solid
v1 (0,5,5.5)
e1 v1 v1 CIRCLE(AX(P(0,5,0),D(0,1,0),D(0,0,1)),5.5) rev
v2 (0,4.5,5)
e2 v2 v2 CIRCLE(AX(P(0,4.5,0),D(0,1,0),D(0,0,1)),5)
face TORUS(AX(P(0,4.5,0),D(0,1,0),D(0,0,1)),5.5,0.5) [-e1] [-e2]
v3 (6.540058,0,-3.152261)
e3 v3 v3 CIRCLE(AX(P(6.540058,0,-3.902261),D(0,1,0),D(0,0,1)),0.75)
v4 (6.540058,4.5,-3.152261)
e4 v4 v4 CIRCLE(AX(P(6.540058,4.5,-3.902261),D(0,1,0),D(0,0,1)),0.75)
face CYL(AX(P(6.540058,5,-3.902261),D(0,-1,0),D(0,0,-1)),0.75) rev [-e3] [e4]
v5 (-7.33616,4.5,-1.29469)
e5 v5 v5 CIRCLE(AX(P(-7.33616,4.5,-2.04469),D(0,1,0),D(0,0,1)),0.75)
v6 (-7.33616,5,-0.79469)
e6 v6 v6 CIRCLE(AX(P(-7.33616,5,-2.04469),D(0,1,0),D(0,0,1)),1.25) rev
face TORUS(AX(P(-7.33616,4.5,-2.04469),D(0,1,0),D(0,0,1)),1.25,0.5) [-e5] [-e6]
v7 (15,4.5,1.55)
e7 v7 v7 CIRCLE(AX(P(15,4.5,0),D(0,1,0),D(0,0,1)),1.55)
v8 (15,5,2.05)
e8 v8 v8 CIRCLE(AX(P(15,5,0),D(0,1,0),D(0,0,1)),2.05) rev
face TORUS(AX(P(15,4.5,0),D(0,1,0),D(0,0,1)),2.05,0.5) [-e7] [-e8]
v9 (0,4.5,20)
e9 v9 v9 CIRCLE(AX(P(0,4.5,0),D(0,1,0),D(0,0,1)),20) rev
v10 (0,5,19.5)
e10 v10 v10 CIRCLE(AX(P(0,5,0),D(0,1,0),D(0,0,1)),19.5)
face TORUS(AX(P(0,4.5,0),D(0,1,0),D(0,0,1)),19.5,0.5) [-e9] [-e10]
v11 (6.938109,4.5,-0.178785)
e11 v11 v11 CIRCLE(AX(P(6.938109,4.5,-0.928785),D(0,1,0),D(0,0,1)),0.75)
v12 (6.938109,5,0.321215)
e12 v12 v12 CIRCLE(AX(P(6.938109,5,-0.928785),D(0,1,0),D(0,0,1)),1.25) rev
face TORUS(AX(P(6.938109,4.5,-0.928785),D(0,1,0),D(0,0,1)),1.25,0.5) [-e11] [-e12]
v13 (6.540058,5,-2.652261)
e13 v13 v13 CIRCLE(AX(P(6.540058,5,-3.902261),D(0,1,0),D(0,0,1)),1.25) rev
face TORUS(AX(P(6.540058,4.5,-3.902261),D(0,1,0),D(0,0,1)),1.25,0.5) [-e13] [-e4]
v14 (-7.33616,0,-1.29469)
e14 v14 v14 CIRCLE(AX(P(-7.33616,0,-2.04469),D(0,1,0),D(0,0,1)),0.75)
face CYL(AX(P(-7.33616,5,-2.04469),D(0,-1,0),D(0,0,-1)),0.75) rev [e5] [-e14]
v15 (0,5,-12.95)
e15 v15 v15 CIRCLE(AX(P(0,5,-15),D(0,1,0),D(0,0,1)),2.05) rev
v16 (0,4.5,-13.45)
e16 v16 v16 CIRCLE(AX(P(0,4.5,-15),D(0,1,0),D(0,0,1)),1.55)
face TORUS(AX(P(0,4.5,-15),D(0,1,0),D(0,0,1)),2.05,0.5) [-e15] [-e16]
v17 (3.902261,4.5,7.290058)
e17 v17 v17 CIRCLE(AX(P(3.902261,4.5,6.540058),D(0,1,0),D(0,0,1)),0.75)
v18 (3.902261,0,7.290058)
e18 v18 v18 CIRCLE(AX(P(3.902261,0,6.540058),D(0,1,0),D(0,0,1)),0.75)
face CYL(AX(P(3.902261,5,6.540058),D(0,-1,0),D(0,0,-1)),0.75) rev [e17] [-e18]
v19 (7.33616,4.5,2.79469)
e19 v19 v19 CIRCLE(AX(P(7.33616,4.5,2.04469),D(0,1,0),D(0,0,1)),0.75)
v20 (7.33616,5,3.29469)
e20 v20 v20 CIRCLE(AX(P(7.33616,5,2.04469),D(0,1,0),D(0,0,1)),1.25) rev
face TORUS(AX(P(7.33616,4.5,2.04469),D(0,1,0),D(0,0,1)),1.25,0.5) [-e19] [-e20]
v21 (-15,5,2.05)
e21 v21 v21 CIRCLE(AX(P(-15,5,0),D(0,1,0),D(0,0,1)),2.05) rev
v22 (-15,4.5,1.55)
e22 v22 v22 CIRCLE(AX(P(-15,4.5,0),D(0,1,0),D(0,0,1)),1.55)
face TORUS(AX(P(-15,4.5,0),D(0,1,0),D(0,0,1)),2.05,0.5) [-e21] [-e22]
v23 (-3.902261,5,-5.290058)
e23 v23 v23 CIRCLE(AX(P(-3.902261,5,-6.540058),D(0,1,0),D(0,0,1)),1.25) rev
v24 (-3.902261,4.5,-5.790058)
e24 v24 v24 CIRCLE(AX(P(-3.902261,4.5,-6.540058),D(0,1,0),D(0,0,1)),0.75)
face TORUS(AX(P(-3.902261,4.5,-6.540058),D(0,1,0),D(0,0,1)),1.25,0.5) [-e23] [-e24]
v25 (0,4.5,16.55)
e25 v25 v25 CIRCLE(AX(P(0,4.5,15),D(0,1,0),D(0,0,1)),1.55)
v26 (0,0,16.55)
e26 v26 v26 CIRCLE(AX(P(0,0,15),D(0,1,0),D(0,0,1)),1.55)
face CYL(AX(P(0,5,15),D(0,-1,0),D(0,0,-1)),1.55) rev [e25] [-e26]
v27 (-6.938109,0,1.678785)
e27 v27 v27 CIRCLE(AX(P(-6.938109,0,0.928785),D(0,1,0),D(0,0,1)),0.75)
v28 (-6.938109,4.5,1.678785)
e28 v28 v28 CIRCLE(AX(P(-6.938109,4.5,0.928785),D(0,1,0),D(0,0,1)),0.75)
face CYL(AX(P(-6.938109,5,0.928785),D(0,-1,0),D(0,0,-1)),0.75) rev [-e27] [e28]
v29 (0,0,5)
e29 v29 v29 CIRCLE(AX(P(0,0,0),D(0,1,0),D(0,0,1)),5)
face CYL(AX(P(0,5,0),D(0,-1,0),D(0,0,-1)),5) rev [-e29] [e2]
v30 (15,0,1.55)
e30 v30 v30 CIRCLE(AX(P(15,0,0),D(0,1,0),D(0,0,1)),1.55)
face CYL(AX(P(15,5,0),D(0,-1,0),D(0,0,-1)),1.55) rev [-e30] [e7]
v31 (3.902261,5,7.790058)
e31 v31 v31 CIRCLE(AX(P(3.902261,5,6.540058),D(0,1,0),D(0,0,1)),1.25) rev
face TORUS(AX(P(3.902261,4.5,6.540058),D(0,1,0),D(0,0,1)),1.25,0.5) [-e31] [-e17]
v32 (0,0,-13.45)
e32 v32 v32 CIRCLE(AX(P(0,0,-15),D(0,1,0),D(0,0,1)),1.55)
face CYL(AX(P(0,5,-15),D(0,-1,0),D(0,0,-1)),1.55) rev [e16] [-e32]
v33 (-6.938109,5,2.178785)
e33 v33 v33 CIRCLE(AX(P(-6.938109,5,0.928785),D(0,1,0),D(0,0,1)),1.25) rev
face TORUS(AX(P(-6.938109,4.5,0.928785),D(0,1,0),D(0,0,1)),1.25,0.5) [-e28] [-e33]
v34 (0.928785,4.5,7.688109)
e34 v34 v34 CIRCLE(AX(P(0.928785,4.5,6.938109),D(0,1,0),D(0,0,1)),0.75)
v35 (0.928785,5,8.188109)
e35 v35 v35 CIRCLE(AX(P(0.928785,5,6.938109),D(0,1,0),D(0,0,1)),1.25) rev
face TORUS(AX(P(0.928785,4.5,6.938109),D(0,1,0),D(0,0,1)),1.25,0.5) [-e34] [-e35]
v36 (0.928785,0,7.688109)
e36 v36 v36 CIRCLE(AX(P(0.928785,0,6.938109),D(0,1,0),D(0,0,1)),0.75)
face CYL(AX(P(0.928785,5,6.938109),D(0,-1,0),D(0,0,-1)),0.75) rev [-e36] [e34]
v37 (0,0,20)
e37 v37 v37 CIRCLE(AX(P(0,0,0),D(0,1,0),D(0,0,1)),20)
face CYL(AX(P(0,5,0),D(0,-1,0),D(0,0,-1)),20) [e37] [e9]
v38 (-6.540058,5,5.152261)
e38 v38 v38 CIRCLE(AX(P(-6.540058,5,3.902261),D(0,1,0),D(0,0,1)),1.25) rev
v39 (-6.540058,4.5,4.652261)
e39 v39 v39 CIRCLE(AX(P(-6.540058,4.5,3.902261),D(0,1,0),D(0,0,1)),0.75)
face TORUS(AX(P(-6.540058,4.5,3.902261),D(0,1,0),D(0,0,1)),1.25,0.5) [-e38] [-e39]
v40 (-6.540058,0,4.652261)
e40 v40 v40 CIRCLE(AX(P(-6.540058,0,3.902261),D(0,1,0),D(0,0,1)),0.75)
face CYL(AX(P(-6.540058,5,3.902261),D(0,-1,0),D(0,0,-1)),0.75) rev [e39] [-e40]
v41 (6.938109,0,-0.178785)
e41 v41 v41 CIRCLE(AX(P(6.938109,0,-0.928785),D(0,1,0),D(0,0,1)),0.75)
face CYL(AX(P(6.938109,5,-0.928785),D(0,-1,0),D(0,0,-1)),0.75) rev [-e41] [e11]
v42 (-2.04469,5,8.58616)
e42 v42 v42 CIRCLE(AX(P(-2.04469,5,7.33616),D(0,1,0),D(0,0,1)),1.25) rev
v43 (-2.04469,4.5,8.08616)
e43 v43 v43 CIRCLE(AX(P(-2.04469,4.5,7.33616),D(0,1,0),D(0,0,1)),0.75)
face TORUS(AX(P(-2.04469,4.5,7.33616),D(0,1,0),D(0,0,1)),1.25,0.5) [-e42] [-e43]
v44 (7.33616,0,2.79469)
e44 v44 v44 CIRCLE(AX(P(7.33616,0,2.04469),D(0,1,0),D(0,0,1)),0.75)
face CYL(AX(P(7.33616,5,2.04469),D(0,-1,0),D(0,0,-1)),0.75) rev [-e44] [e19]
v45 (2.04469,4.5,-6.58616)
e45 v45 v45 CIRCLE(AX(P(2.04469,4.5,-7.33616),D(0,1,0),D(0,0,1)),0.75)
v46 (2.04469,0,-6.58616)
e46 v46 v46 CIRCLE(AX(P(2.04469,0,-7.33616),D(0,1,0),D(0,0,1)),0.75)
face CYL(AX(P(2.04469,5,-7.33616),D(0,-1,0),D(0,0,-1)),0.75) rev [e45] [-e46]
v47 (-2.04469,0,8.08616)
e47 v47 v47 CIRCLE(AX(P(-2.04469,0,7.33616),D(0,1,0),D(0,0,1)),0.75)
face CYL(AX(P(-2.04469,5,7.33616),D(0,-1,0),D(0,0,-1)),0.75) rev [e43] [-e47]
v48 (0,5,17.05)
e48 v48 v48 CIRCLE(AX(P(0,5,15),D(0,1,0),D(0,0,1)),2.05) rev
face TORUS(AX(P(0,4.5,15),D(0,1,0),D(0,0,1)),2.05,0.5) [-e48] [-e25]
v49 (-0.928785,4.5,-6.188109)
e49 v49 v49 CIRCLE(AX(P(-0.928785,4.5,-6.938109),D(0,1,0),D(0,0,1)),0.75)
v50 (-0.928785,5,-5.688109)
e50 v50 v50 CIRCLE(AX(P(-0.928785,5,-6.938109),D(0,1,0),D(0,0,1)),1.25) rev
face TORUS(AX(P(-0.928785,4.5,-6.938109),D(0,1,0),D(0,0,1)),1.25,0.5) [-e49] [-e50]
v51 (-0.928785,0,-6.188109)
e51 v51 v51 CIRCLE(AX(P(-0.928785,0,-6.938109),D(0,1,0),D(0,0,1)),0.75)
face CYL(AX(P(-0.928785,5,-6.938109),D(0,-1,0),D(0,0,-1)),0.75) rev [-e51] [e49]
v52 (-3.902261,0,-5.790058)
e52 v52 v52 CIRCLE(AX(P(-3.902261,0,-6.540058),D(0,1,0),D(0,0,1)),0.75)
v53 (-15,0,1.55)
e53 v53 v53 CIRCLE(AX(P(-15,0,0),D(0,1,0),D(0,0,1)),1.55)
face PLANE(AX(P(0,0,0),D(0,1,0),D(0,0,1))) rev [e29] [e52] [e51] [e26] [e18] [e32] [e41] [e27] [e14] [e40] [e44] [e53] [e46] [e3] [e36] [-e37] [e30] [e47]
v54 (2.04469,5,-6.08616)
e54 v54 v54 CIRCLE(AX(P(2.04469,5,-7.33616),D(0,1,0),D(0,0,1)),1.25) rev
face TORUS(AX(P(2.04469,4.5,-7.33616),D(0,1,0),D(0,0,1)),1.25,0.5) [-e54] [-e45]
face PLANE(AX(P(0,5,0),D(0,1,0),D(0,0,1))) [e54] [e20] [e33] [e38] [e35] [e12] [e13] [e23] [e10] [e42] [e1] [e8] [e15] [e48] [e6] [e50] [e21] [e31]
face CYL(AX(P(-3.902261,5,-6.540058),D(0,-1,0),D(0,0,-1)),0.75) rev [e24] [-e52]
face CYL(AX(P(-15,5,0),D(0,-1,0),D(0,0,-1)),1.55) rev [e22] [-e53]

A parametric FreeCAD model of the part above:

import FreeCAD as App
import Part
import Sketcher
Q = App.Units.Quantity


def edges_at(feature, points):
    """Names of the edges that pass closest to the given points."""
    edges = feature.Shape.Edges
    near = lambda p: min(range(len(edges)), key=lambda i: edges[i].distToShape(Part.Vertex(*p))[0])
    return sorted({f"Edge{near(p) + 1}" for p in points})

doc = App.newDocument("Part")
body = doc.addObject("PartDesign::Body", "Body")

# Sketch on XZ plane
sketch1 = body.newObject("Sketcher::SketchObject", "Sketch")
sketch1.AttachmentSupport = (doc.getObject("XZ_Plane"), [""])
sketch1.MapMode = "FlatFace"
sketch1.addGeometry([
    Part.Circle(App.Vector(0, 0, 0), App.Vector(0, 0, 1), 20),  # 0
    Part.Circle(App.Vector(0, 15, 0), App.Vector(0, 0, 1), 1.6),  # 1
    Part.Circle(App.Vector(-15, 0, 0), App.Vector(0, 0, 1), 1.6),  # 2
    Part.Circle(App.Vector(0, 0, 0), App.Vector(0, 0, 1), 5),  # 3
    Part.Circle(App.Vector(0, -15, 0), App.Vector(0, 0, 1), 1.6),  # 4
    Part.Circle(App.Vector(15, 0, 0), App.Vector(0, 0, 1), 1.6),  # 5
], False)
sketch1.addConstraint([
    Sketcher.Constraint("Coincident", 0, 3, -1, 1),
    Sketcher.Constraint("Coincident", 3, 3, -1, 1),
    Sketcher.Constraint("Equal", 1, 2),
    Sketcher.Constraint("Equal", 2, 4),
    Sketcher.Constraint("Equal", 4, 5),
    Sketcher.Constraint("Symmetric", 1, 3, 4, 3, -1, 1),
    Sketcher.Constraint("Symmetric", 2, 3, 5, 3, -1, 1),
    Sketcher.Constraint("PointOnObject", 1, 3, -2),
    Sketcher.Constraint("PointOnObject", 2, 3, -1),
    Sketcher.Constraint("Diameter", 0, Q("40 mm")),
    Sketcher.Constraint("Diameter", 3, Q("10 mm")),
    Sketcher.Constraint("Diameter", 1, Q("3.1 mm")),
    Sketcher.Constraint("DistanceY", -1, 1, 1, 3, Q("15 mm")),
    Sketcher.Constraint("DistanceX", 2, 3, -1, 1, Q("15 mm")),
])
pad1 = body.newObject("PartDesign::Pad", "Pad")
pad1.Profile = sketch1
pad1.Length = 5
pad1.Reversed = True
doc.recompute()

fillet = body.newObject("PartDesign::Fillet", "Fillet")
fillet.Base = (pad1, edges_at(pad1, [
    (-1.55, 5, 15),
    (-16.55, 5, 0),
    (-5, 5, 0),
    (-20, 5, 0),
    (-1.55, 5, -15),
    (13.45, 5, 0),
]))
fillet.Radius = 0.5

# Sketch on XZ plane
sketch2 = body.newObject("Sketcher::SketchObject", "Sketch001")
sketch2.AttachmentSupport = (doc.getObject("XZ_Plane"), [""])
sketch2.MapMode = "FlatFace"
sketch2.addGeometry([
    Part.Circle(App.Vector(-7.3, -2, 0), App.Vector(0, 0, 1), 0.8),  # 0
    Part.Circle(App.Vector(-6.9, 0.9, 0), App.Vector(0, 0, 1), 0.8),  # 1
    Part.Circle(App.Vector(-6.5, 3.9, 0), App.Vector(0, 0, 1), 0.8),  # 2
    Part.Circle(App.Vector(-2, 7.3, 0), App.Vector(0, 0, 1), 0.8),  # 3
    Part.Circle(App.Vector(0.9, 6.9, 0), App.Vector(0, 0, 1), 0.8),  # 4
    Part.Circle(App.Vector(3.9, 6.5, 0), App.Vector(0, 0, 1), 0.8),  # 5
    Part.Circle(App.Vector(7.3, 2, 0), App.Vector(0, 0, 1), 0.8),  # 6
    Part.Circle(App.Vector(6.9, -0.9, 0), App.Vector(0, 0, 1), 0.8),  # 7
    Part.Circle(App.Vector(6.5, -3.9, 0), App.Vector(0, 0, 1), 0.8),  # 8
    Part.Circle(App.Vector(2, -7.3, 0), App.Vector(0, 0, 1), 0.8),  # 9
    Part.Circle(App.Vector(-0.9, -6.9, 0), App.Vector(0, 0, 1), 0.8),  # 10
    Part.Circle(App.Vector(-3.9, -6.5, 0), App.Vector(0, 0, 1), 0.8),  # 11
], False)
sketch2.addConstraint([
    Sketcher.Constraint("Equal", 0, 1),
    Sketcher.Constraint("Equal", 1, 2),
    Sketcher.Constraint("Equal", 2, 3),
    Sketcher.Constraint("Equal", 3, 4),
    Sketcher.Constraint("Equal", 4, 5),
    Sketcher.Constraint("Equal", 5, 6),
    Sketcher.Constraint("Equal", 6, 7),
    Sketcher.Constraint("Equal", 7, 8),
    Sketcher.Constraint("Equal", 8, 9),
    Sketcher.Constraint("Equal", 9, 10),
    Sketcher.Constraint("Equal", 10, 11),
    Sketcher.Constraint("Symmetric", 0, 3, 6, 3, -1, 1),
    Sketcher.Constraint("Symmetric", 1, 3, 7, 3, -1, 1),
    Sketcher.Constraint("Symmetric", 2, 3, 8, 3, -1, 1),
    Sketcher.Constraint("Symmetric", 3, 3, 9, 3, -1, 1),
    Sketcher.Constraint("Symmetric", 4, 3, 10, 3, -1, 1),
    Sketcher.Constraint("Symmetric", 5, 3, 11, 3, -1, 1),
    Sketcher.Constraint("Diameter", 0, Q("1.5 mm")),
    Sketcher.Constraint("DistanceX", 0, 3, 2, 3, Q("0.796102 mm")),
    Sketcher.Constraint("DistanceY", 2, 3, 3, 3, Q("3.433899 mm")),
    Sketcher.Constraint("DistanceY", 0, 3, 4, 3, Q("8.982799 mm")),
    Sketcher.Constraint("DistanceY", 5, 3, 3, 3, Q("0.796102 mm")),
    Sketcher.Constraint("DistanceX", 5, 3, 6, 3, Q("3.433899 mm")),
    Sketcher.Constraint("DistanceX", 3, 3, 7, 3, Q("8.982799 mm")),
    Sketcher.Constraint("DistanceX", 0, 3, -1, 1, Q("7.33616 mm")),
    Sketcher.Constraint("DistanceY", 0, 3, -1, 1, Q("2.04469 mm")),
    Sketcher.Constraint("DistanceX", 1, 3, -1, 1, Q("6.938109 mm")),
    Sketcher.Constraint("DistanceY", -1, 1, 2, 3, Q("3.902261 mm")),
    Sketcher.Constraint("DistanceY", 7, 3, 1, 3, Q("1.857571 mm")),
    Sketcher.Constraint("DistanceX", -1, 1, 4, 3, Q("0.928785 mm")),
])
pocket1 = body.newObject("PartDesign::Pocket", "Pocket")
pocket1.Profile = sketch2
pocket1.Type = "ThroughAll"
pocket1.Midplane = True
doc.recompute()

fillet2 = body.newObject("PartDesign::Fillet", "Fillet001")
fillet2.Base = (pocket1, edges_at(pocket1, [
    (-2.795, 5, 7.336),
    (0.179, 5, 6.938),
    (3.152, 5, 6.54),
    (6.586, 5, 2.045),
    (6.188, 5, -0.929),
    (5.79, 5, -3.902),
    (1.295, 5, -7.336),
    (-8.086, 5, -2.045),
    (-4.652, 5, -6.54),
    (-7.29, 5, 3.902),
    (-1.679, 5, -6.938),
    (-7.688, 5, 0.929),
]))
fillet2.Radius = 0.5

doc.recompute()
